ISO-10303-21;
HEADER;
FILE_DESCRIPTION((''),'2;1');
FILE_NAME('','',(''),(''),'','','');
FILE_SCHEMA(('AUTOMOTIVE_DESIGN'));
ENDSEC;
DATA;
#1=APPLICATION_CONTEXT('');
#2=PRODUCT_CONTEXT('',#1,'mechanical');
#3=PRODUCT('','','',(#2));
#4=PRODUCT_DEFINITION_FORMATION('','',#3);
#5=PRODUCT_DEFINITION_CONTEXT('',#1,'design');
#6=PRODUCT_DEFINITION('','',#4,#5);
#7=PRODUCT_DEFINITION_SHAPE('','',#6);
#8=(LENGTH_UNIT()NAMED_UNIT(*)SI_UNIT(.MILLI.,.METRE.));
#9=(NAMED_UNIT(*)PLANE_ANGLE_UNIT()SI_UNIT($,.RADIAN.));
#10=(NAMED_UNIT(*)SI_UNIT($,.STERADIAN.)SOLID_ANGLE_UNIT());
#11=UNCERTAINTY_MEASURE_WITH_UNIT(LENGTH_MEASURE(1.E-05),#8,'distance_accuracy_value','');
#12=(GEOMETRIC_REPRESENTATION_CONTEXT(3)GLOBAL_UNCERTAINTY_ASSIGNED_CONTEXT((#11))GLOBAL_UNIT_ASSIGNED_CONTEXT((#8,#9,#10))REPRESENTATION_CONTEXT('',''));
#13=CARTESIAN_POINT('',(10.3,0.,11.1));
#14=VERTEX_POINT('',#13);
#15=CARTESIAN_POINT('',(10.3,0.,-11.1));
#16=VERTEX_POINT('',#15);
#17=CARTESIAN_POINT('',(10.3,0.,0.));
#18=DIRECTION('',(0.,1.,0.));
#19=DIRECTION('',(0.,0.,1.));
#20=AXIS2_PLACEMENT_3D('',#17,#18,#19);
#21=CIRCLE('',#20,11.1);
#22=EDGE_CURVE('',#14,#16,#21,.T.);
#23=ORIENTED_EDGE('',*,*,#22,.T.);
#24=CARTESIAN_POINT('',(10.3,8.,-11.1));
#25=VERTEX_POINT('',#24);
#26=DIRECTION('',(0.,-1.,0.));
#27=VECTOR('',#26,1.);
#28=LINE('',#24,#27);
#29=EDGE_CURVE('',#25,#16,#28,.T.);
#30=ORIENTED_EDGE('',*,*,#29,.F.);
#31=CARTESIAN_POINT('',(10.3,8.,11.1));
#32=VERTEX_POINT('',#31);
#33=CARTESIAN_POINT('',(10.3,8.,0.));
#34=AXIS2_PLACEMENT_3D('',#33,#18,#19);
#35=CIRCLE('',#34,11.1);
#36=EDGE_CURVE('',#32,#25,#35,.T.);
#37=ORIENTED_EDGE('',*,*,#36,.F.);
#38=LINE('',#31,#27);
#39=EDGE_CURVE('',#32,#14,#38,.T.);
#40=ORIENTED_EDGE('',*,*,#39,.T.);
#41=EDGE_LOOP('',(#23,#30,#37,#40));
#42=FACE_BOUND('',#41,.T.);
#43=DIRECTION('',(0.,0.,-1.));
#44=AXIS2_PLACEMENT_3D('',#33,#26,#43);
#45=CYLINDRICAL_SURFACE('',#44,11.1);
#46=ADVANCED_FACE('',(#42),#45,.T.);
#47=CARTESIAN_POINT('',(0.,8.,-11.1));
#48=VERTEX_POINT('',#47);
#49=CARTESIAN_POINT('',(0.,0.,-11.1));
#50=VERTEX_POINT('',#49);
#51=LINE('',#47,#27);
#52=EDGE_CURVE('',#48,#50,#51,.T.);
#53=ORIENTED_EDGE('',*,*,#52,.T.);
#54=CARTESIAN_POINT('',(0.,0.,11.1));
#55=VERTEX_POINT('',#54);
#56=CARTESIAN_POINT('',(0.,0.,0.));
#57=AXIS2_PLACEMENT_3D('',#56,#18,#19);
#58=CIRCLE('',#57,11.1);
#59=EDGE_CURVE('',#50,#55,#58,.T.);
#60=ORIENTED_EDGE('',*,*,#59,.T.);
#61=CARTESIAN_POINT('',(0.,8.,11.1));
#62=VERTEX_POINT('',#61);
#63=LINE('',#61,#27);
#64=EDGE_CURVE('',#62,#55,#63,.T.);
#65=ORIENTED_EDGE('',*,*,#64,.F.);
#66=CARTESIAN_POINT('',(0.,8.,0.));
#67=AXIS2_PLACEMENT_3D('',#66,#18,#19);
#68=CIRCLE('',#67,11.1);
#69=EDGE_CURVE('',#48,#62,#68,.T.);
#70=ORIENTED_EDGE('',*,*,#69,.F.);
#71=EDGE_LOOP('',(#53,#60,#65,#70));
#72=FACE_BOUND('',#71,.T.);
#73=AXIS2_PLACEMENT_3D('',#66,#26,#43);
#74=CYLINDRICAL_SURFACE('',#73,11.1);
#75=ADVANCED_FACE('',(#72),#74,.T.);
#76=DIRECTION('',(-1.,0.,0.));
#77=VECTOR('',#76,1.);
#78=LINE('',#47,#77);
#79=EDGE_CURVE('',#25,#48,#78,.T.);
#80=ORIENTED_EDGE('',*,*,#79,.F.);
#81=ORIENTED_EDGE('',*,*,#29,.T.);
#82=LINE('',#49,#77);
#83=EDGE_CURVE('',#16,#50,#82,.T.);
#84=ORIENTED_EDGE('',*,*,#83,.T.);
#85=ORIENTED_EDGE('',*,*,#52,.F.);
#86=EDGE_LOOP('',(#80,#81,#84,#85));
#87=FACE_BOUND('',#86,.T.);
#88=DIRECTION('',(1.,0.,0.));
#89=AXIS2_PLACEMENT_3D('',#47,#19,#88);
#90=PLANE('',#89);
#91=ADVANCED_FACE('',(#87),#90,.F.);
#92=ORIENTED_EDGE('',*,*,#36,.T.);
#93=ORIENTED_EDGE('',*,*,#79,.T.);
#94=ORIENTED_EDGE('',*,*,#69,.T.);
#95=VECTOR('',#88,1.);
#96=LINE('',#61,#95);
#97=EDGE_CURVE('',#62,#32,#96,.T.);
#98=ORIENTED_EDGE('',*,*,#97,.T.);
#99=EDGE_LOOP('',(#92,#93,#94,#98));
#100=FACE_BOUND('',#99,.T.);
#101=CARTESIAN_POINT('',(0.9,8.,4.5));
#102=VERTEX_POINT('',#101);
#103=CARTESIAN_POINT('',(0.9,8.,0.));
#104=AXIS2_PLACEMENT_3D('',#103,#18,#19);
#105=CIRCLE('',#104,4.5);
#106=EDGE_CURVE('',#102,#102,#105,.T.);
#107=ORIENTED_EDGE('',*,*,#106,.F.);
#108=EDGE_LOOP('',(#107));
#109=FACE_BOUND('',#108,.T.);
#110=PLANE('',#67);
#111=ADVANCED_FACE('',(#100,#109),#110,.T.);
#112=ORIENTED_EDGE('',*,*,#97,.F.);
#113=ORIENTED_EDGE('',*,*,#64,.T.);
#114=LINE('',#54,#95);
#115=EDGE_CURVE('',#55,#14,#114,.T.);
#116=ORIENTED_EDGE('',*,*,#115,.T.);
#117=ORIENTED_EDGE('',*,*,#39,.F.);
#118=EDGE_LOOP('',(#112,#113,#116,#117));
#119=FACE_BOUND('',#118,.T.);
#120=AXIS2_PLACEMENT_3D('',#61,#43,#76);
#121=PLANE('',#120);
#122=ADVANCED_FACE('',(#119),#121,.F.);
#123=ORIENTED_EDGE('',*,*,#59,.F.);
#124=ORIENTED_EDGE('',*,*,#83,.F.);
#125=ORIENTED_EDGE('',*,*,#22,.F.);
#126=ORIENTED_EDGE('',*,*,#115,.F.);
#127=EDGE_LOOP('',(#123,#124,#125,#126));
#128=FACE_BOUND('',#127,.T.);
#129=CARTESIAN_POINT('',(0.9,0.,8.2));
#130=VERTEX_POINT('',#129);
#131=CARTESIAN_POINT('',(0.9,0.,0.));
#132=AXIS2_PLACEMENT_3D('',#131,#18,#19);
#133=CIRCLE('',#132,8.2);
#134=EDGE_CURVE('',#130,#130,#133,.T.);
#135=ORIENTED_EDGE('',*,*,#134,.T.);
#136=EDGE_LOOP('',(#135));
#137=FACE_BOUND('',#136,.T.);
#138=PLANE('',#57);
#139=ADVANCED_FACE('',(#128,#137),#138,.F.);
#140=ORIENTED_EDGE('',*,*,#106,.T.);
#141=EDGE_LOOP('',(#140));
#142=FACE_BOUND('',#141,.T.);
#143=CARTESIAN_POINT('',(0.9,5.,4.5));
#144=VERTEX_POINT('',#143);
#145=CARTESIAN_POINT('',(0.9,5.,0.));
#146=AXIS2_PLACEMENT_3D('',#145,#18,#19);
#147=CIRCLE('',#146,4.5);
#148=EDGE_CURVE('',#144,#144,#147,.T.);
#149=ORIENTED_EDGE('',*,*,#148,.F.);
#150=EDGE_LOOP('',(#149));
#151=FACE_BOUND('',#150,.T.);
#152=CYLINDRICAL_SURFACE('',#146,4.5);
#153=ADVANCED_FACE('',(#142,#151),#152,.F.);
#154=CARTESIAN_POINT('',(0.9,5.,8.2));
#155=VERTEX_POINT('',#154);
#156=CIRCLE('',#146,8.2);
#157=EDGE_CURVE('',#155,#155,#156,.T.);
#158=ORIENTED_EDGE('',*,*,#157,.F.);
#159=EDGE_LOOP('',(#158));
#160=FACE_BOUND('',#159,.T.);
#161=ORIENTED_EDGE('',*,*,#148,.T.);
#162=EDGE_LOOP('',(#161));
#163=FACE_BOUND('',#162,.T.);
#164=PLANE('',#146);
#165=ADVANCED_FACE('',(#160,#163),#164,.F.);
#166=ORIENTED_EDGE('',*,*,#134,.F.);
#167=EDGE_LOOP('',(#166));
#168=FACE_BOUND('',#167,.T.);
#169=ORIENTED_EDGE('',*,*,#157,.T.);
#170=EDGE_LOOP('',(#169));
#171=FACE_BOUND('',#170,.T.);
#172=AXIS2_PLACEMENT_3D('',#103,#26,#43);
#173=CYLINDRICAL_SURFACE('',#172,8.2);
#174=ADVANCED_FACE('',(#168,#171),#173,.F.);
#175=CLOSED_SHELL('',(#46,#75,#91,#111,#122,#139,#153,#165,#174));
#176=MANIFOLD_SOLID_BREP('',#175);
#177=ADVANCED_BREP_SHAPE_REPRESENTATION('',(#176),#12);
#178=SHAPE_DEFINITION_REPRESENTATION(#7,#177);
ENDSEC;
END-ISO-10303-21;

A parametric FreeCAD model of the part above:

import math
import FreeCAD as App
import Part
import Sketcher
from FreeCAD import Vector

doc = App.newDocument("Part")
body = doc.addObject("PartDesign::Body", "Body")

# Sketch on XZ plane
sketch1 = body.newObject("Sketcher::SketchObject", "Sketch")
sketch1.AttachmentSupport = (doc.getObject("XZ_Plane"), [""])
sketch1.MapMode = "FlatFace"
sketch1.addGeometry(Part.LineSegment(Vector(10.3, -11.1, 0), Vector(0, -11.1, 0)), False)
sketch1.addGeometry(Part.ArcOfCircle(Part.Circle(Vector(0, 0, 0), Vector(0, 0, 1), 11.1), math.radians(90), math.radians(270)), False)
sketch1.addGeometry(Part.LineSegment(Vector(0, 11.1, 0), Vector(10.3, 11.1, 0)), False)
sketch1.addGeometry(Part.ArcOfCircle(Part.Circle(Vector(10.3, 0, 0), Vector(0, 0, 1), 11.1), math.radians(-90), math.radians(90)), False)
sketch1.addGeometry(Part.Circle(Vector(0.9, 0, 0), Vector(0, 0, 1), 8.2), False)
sketch1.addConstraint(Sketcher.Constraint("Tangent", 0, 2, 1, 2))
sketch1.addConstraint(Sketcher.Constraint("Tangent", 1, 1, 2, 1))
sketch1.addConstraint(Sketcher.Constraint("Tangent", 2, 2, 3, 2))
sketch1.addConstraint(Sketcher.Constraint("Tangent", 3, 1, 0, 1))
sketch1.addConstraint(Sketcher.Constraint("Horizontal", 0))
sketch1.addConstraint(Sketcher.Constraint("Horizontal", 2))
sketch1.addConstraint(Sketcher.Constraint("Coincident", 1, 3, -1, 1))
sketch1.addConstraint(Sketcher.Constraint("PointOnObject", 4, 3, -1))
sketch1.addConstraint(Sketcher.Constraint("Diameter", 4, 16.4))
sketch1.addConstraint(Sketcher.Constraint("Radius", 1, 11.1))
sketch1.addConstraint(Sketcher.Constraint("DistanceX", 0, 2, 0, 1, 10.3))
sketch1.addConstraint(Sketcher.Constraint("DistanceX", -1, 1, 4, 3, 0.9))
pad1 = body.newObject("PartDesign::Pad", "Pad")
pad1.Profile = sketch1
pad1.Length = 8
pad1.Reversed = True

# Sketch on XZ plane
sketch2 = body.newObject("Sketcher::SketchObject", "Sketch001")
sketch2.AttachmentSupport = (doc.getObject("XZ_Plane"), [""])
sketch2.MapMode = "FlatFace"
sketch2.AttachmentOffset = App.Placement(Vector(0, 0, -5), App.Rotation())
sketch2.addGeometry(Part.Circle(Vector(0.9, 0, 0), Vector(0, 0, 1), 8.2), False)
sketch2.addGeometry(Part.Circle(Vector(0.9, 0, 0), Vector(0, 0, 1), 4.5), False)
sketch2.addConstraint(Sketcher.Constraint("Coincident", 1, 3, 0, 3))
sketch2.addConstraint(Sketcher.Constraint("PointOnObject", 0, 3, -1))
sketch2.addConstraint(Sketcher.Constraint("Diameter", 1, 9.0))
sketch2.addConstraint(Sketcher.Constraint("Diameter", 0, 16.4))
sketch2.addConstraint(Sketcher.Constraint("DistanceX", -1, 1, 0, 3, 0.9))
pad2 = body.newObject("PartDesign::Pad", "Pad001")
pad2.Profile = sketch2
pad2.Length = 3
pad2.Reversed = True

doc.recompute()
